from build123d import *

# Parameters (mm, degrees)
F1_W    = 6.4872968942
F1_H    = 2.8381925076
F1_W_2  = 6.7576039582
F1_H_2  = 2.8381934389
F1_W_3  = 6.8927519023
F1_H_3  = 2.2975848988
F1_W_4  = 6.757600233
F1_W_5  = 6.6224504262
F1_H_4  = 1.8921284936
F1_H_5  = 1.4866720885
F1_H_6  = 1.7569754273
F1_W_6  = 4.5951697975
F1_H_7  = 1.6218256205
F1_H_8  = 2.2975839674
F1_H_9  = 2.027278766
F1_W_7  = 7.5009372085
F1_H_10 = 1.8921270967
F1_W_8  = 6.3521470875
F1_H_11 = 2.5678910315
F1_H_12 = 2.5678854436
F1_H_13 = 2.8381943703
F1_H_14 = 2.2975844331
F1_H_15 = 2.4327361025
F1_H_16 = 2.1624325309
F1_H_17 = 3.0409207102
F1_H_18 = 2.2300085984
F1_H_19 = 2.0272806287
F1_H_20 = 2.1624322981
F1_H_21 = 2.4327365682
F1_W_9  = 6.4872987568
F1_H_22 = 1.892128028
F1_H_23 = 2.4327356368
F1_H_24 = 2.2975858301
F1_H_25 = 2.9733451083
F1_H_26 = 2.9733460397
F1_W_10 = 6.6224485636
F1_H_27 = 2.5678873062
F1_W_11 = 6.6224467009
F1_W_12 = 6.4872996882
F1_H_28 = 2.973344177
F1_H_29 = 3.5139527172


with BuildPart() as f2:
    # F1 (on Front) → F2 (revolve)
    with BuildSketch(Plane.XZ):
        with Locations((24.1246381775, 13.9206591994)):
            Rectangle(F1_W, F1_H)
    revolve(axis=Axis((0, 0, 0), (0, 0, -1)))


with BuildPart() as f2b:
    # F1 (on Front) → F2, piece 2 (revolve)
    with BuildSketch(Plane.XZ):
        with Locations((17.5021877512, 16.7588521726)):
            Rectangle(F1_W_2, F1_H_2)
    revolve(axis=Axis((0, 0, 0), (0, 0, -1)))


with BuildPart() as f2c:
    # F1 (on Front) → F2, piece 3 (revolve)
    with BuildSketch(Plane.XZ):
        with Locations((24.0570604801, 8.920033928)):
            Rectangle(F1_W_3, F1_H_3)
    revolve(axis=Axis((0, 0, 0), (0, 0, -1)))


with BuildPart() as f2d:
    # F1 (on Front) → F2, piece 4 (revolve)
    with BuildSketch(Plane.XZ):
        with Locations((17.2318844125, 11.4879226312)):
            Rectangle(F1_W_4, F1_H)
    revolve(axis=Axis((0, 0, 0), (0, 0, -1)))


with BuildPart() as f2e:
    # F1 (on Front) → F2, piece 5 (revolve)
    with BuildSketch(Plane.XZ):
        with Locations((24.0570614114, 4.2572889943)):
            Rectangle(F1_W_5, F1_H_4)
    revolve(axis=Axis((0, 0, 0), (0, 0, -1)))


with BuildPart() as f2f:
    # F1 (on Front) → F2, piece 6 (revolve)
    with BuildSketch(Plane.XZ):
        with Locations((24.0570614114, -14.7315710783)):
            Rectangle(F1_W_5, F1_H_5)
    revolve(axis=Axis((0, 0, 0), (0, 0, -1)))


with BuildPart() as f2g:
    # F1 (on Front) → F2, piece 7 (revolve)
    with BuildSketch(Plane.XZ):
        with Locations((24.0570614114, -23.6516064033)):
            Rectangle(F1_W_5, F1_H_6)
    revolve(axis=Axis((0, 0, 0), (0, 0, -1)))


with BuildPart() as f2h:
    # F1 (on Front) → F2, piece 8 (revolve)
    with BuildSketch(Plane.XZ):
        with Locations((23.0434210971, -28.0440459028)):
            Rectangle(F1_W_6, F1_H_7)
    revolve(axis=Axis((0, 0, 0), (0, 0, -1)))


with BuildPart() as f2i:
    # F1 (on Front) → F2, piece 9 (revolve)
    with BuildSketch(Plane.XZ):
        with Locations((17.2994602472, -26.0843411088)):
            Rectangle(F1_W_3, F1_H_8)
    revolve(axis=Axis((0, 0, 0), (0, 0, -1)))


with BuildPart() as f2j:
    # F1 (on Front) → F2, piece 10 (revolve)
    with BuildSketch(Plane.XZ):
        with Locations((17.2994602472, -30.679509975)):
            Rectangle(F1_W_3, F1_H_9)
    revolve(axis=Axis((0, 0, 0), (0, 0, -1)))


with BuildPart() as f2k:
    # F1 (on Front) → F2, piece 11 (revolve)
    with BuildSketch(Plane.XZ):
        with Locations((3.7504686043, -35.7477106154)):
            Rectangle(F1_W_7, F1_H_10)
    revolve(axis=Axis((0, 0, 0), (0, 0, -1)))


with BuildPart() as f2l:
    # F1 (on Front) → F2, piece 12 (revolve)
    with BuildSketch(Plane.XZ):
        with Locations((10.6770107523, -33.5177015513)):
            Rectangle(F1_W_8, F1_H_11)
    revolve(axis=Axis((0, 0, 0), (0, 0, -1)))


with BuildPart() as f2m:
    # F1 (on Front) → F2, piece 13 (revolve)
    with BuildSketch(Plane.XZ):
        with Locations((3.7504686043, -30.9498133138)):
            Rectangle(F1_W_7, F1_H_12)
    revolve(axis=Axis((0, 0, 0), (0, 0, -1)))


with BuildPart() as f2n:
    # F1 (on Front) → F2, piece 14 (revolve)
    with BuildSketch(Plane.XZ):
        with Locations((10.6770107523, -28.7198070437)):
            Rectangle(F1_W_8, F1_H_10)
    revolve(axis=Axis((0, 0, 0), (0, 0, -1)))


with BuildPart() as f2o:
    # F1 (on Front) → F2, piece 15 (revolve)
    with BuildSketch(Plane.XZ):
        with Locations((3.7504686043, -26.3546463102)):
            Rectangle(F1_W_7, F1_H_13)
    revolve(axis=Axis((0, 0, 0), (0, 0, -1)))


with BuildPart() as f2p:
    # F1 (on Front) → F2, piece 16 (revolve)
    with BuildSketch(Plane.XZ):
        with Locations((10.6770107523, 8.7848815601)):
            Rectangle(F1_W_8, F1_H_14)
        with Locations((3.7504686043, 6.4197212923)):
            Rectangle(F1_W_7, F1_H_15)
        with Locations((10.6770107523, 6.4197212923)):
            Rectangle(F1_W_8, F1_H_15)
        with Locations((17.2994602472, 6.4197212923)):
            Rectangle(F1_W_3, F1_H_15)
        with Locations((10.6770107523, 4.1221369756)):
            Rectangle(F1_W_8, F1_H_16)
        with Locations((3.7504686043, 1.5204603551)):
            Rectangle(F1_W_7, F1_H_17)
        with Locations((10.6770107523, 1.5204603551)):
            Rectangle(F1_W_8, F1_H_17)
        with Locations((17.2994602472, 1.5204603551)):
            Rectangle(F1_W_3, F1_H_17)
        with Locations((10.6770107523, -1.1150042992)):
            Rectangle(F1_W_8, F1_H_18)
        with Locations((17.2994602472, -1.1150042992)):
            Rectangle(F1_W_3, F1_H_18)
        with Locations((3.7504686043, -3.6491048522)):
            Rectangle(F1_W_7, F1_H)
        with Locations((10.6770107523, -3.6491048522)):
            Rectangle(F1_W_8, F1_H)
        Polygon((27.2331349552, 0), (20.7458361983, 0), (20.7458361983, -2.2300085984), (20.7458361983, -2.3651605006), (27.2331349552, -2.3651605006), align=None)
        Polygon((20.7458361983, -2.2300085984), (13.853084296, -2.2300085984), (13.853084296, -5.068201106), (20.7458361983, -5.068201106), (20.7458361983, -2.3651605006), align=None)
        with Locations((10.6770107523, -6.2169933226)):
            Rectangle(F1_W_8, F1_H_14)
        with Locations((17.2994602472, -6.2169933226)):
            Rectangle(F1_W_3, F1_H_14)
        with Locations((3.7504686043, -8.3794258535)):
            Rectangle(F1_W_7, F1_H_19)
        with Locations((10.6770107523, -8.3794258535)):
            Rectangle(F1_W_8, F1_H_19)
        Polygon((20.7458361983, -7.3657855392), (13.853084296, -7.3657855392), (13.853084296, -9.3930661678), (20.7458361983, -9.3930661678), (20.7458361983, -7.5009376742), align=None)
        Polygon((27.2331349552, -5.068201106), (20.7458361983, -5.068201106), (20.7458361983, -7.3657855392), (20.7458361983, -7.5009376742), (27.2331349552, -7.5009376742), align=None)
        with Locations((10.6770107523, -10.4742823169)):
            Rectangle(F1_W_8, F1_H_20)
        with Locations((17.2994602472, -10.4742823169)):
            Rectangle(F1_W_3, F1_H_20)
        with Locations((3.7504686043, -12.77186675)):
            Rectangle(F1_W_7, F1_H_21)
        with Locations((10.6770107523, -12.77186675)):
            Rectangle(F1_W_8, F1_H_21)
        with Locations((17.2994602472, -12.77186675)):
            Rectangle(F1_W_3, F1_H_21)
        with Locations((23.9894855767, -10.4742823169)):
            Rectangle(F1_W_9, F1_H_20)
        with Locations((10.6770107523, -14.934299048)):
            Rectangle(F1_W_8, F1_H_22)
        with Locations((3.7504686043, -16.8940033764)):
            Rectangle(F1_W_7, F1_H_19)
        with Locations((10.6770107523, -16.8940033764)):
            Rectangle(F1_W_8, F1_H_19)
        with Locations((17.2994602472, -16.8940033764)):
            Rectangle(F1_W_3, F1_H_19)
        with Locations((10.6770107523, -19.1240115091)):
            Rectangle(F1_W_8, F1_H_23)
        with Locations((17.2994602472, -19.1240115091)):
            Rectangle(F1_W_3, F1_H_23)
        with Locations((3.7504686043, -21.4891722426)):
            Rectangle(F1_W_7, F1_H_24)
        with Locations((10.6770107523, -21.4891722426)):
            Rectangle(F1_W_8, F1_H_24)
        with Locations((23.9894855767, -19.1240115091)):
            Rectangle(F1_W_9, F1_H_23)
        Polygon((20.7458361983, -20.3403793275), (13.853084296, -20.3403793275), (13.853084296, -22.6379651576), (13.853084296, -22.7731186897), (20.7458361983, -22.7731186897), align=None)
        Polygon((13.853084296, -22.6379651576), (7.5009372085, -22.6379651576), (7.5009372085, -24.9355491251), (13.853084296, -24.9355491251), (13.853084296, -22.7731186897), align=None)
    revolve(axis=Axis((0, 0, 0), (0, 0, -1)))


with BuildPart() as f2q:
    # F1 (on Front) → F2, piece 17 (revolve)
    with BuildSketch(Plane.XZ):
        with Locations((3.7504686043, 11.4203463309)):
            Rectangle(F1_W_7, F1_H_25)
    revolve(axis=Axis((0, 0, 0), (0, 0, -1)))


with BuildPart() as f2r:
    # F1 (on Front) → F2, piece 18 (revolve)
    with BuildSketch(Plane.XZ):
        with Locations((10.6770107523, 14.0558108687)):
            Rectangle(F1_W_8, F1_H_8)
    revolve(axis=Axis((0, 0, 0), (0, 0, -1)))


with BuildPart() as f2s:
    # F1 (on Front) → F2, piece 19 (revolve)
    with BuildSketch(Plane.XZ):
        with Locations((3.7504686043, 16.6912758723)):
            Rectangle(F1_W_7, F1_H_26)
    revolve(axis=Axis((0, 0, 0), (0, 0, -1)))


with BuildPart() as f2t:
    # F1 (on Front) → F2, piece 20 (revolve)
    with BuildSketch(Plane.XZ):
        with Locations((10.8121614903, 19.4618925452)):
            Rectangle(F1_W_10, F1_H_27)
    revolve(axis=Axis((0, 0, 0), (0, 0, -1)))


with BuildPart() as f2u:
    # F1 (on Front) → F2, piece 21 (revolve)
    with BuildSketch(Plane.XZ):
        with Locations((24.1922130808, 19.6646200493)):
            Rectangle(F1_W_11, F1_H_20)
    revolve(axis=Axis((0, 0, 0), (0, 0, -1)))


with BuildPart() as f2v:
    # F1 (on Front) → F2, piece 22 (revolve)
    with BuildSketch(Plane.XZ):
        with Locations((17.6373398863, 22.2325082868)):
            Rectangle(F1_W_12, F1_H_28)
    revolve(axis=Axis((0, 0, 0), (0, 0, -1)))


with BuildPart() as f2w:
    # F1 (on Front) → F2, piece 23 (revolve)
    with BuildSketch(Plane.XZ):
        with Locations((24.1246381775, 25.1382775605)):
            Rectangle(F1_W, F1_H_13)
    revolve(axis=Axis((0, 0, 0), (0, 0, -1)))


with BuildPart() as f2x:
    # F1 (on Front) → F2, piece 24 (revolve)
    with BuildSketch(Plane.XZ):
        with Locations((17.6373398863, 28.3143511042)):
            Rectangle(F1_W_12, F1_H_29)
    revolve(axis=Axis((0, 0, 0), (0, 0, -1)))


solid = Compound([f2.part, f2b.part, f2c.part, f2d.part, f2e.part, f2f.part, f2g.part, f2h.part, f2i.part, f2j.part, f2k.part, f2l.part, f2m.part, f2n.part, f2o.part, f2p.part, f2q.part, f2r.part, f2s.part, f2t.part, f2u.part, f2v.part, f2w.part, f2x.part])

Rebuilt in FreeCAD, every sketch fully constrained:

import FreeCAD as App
import Part
import Sketcher


def add_polygon(sketch, points):
    """Adds a closed chain of lines whose ends are joined by coincident constraints."""
    first, n = sketch.GeometryCount, len(points)
    for a, b in zip(points, points[1:] + points[:1]):
        sketch.addGeometry(Part.LineSegment(App.Vector(*a, 0), App.Vector(*b, 0)), False)
    for i in range(n):
        sketch.addConstraint(Sketcher.Constraint("Coincident", first + i, 2, first + (i + 1) % n, 1))

doc = App.newDocument("Part")
params = doc.addObject("Spreadsheet::Sheet", "Params")
for row, (alias, value) in enumerate([
    ("revolution_angle", "360 deg"),
    ("revolution2_angle", "360 deg"),
    ("revolution3_angle", "360 deg"),
    ("revolution4_angle", "360 deg"),
    ("revolution5_angle", "360 deg"),
    ("revolution6_angle", "360 deg"),
    ("revolution7_angle", "360 deg"),
    ("revolution8_angle", "360 deg"),
    ("revolution9_angle", "360 deg"),
    ("revolution10_angle", "360 deg"),
    ("revolution11_angle", "360 deg"),
    ("revolution12_angle", "360 deg"),
    ("revolution13_angle", "360 deg"),
    ("revolution14_angle", "360 deg"),
    ("revolution15_angle", "360 deg"),
    ("revolution16_angle", "360 deg"),
    ("revolution17_angle", "360 deg"),
    ("revolution18_angle", "360 deg"),
    ("revolution19_angle", "360 deg"),
    ("revolution20_angle", "360 deg"),
    ("revolution21_angle", "360 deg"),
    ("revolution22_angle", "360 deg"),
    ("revolution23_angle", "360 deg"),
    ("revolution24_angle", "360 deg"),
], start=1):
    params.set(f"A{row}", alias)
    params.set(f"B{row}", "=" + value)
    params.setAlias(f"B{row}", alias)

body = doc.addObject("PartDesign::Body", "Body")

sketch1 = body.newObject("Sketcher::SketchObject", "Sketch")
sketch1.AttachmentSupport = (doc.getObject("XZ_Plane"), [""])
sketch1.MapMode = "FlatFace"
add_polygon(sketch1, [(20.9, 15.3), (20.9, 12.5), (27.4, 12.5), (27.4, 15.3)])
sketch1.addConstraint([
    Sketcher.Constraint("Vertical", 0),
    Sketcher.Constraint("Horizontal", 1),
    Sketcher.Constraint("Vertical", 2),
    Sketcher.Constraint("Horizontal", 3),
    Sketcher.Constraint("DistanceX", 1, 1, 1, 2, 6.487297),
    Sketcher.Constraint("DistanceY", 0, 2, 0, 1, 2.838193),
    Sketcher.Constraint("DistanceX", -1, 1, 0, 2, 20.88099),
    Sketcher.Constraint("DistanceY", -1, 1, 0, 2, 12.501563),
])
revolution = body.newObject("PartDesign::Revolution", "Revolution")
revolution.Profile = sketch1
revolution.ReferenceAxis = (sketch1, ["V_Axis"])
revolution.setExpression("Angle", "Params.revolution_angle")
body2 = doc.addObject("PartDesign::Body", "Body001")

sketch2 = body2.newObject("Sketcher::SketchObject", "Sketch001")
sketch2.AttachmentSupport = (doc.getObject("XZ_Plane001"), [""])
sketch2.MapMode = "FlatFace"
add_polygon(sketch2, [(14.1, 18.2), (14.1, 15.3), (20.9, 15.3), (20.9, 18.2)])
sketch2.addConstraint([
    Sketcher.Constraint("Vertical", 0),
    Sketcher.Constraint("Horizontal", 1),
    Sketcher.Constraint("Vertical", 2),
    Sketcher.Constraint("Horizontal", 3),
    Sketcher.Constraint("DistanceX", 1, 1, 1, 2, 6.757604),
    Sketcher.Constraint("DistanceY", 0, 2, 0, 1, 2.838193),
    Sketcher.Constraint("DistanceX", -1, 1, 1, 2, 20.88099),
    Sketcher.Constraint("DistanceY", -1, 1, 2, 2, 18.177949),
])
revolution2 = body2.newObject("PartDesign::Revolution", "Revolution001")
revolution2.Profile = sketch2
revolution2.ReferenceAxis = (sketch2, ["V_Axis"])
revolution2.setExpression("Angle", "Params.revolution2_angle")
body3 = doc.addObject("PartDesign::Body", "Body002")

sketch3 = body3.newObject("Sketcher::SketchObject", "Sketch002")
sketch3.AttachmentSupport = (doc.getObject("XZ_Plane002"), [""])
sketch3.MapMode = "FlatFace"
add_polygon(sketch3, [(20.6, 10.1), (20.6, 7.8), (27.5, 7.8), (27.5, 10.1)])
sketch3.addConstraint([
    Sketcher.Constraint("Vertical", 0),
    Sketcher.Constraint("Horizontal", 1),
    Sketcher.Constraint("Vertical", 2),
    Sketcher.Constraint("Horizontal", 3),
    Sketcher.Constraint("DistanceX", 1, 1, 1, 2, 6.892752),
    Sketcher.Constraint("DistanceY", 0, 2, 0, 1, 2.297585),
    Sketcher.Constraint("DistanceY", -1, 1, 0, 2, 7.771241),
    Sketcher.Constraint("DistanceX", -1, 1, 0, 2, 20.610685),
])
revolution3 = body3.newObject("PartDesign::Revolution", "Revolution002")
revolution3.Profile = sketch3
revolution3.ReferenceAxis = (sketch3, ["V_Axis"])
revolution3.setExpression("Angle", "Params.revolution3_angle")
body4 = doc.addObject("PartDesign::Body", "Body003")

sketch4 = body4.newObject("Sketcher::SketchObject", "Sketch003")
sketch4.AttachmentSupport = (doc.getObject("XZ_Plane003"), [""])
sketch4.MapMode = "FlatFace"
add_polygon(sketch4, [(13.9, 12.9), (13.9, 10.1), (20.6, 10.1), (20.6, 12.9)])
sketch4.addConstraint([
    Sketcher.Constraint("Vertical", 0),
    Sketcher.Constraint("Horizontal", 1),
    Sketcher.Constraint("Vertical", 2),
    Sketcher.Constraint("Horizontal", 3),
    Sketcher.Constraint("DistanceX", 1, 1, 1, 2, 6.7576),
    Sketcher.Constraint("DistanceY", 0, 2, 0, 1, 2.838193),
    Sketcher.Constraint("DistanceY", -1, 1, 2, 2, 12.907019),
    Sketcher.Constraint("DistanceX", -1, 1, 0, 2, 13.853084),
])
revolution4 = body4.newObject("PartDesign::Revolution", "Revolution003")
revolution4.Profile = sketch4
revolution4.ReferenceAxis = (sketch4, ["V_Axis"])
revolution4.setExpression("Angle", "Params.revolution4_angle")
body5 = doc.addObject("PartDesign::Body", "Body004")

sketch5 = body5.newObject("Sketcher::SketchObject", "Sketch004")
sketch5.AttachmentSupport = (doc.getObject("XZ_Plane004"), [""])
sketch5.MapMode = "FlatFace"
add_polygon(sketch5, [(20.7, 5.2), (20.7, 3.3), (27.4, 3.3), (27.4, 5.2)])
sketch5.addConstraint([
    Sketcher.Constraint("Vertical", 0),
    Sketcher.Constraint("Horizontal", 1),
    Sketcher.Constraint("Vertical", 2),
    Sketcher.Constraint("Horizontal", 3),
    Sketcher.Constraint("DistanceX", 1, 1, 1, 2, 6.62245),
    Sketcher.Constraint("DistanceY", 0, 2, 0, 1, 1.892128),
    Sketcher.Constraint("DistanceX", -1, 1, 0, 2, 20.745836),
    Sketcher.Constraint("DistanceY", -1, 1, 0, 2, 3.311225),
])
revolution5 = body5.newObject("PartDesign::Revolution", "Revolution004")
revolution5.Profile = sketch5
revolution5.ReferenceAxis = (sketch5, ["V_Axis"])
revolution5.setExpression("Angle", "Params.revolution5_angle")
body6 = doc.addObject("PartDesign::Body", "Body005")

sketch6 = body6.newObject("Sketcher::SketchObject", "Sketch005")
sketch6.AttachmentSupport = (doc.getObject("XZ_Plane005"), [""])
sketch6.MapMode = "FlatFace"
add_polygon(sketch6, [(20.7, -14), (20.7, -15.5), (27.4, -15.5), (27.4, -14)])
sketch6.addConstraint([
    Sketcher.Constraint("Vertical", 0),
    Sketcher.Constraint("Horizontal", 1),
    Sketcher.Constraint("Vertical", 2),
    Sketcher.Constraint("Horizontal", 3),
    Sketcher.Constraint("DistanceX", 1, 1, 1, 2, 6.62245),
    Sketcher.Constraint("DistanceY", 0, 2, 0, 1, 1.486672),
    Sketcher.Constraint("DistanceX", -1, 1, 0, 2, 20.745836),
    Sketcher.Constraint("DistanceY", 0, 2, -1, 1, 15.474907),
])
revolution6 = body6.newObject("PartDesign::Revolution", "Revolution005")
revolution6.Profile = sketch6
revolution6.ReferenceAxis = (sketch6, ["V_Axis"])
revolution6.setExpression("Angle", "Params.revolution6_angle")
body7 = doc.addObject("PartDesign::Body", "Body006")

sketch7 = body7.newObject("Sketcher::SketchObject", "Sketch006")
sketch7.AttachmentSupport = (doc.getObject("XZ_Plane006"), [""])
sketch7.MapMode = "FlatFace"
add_polygon(sketch7, [(20.7, -22.8), (20.7, -24.5), (27.4, -24.5), (27.4, -22.8)])
sketch7.addConstraint([
    Sketcher.Constraint("Vertical", 0),
    Sketcher.Constraint("Horizontal", 1),
    Sketcher.Constraint("Vertical", 2),
    Sketcher.Constraint("Horizontal", 3),
    Sketcher.Constraint("DistanceX", 1, 1, 1, 2, 6.62245),
    Sketcher.Constraint("DistanceY", 0, 2, 0, 1, 1.756975),
    Sketcher.Constraint("DistanceY", 2, 2, -1, 1, 22.773119),
    Sketcher.Constraint("DistanceX", -1, 1, 0, 2, 20.745836),
])
revolution7 = body7.newObject("PartDesign::Revolution", "Revolution006")
revolution7.Profile = sketch7
revolution7.ReferenceAxis = (sketch7, ["V_Axis"])
revolution7.setExpression("Angle", "Params.revolution7_angle")
body8 = doc.addObject("PartDesign::Body", "Body007")

sketch8 = body8.newObject("Sketcher::SketchObject", "Sketch007")
sketch8.AttachmentSupport = (doc.getObject("XZ_Plane007"), [""])
sketch8.MapMode = "FlatFace"
add_polygon(sketch8, [(20.7, -27.2), (20.7, -28.9), (25.3, -28.9), (25.3, -27.2)])
sketch8.addConstraint([
    Sketcher.Constraint("Vertical", 0),
    Sketcher.Constraint("Horizontal", 1),
    Sketcher.Constraint("Vertical", 2),
    Sketcher.Constraint("Horizontal", 3),
    Sketcher.Constraint("DistanceX", 1, 1, 1, 2, 4.59517),
    Sketcher.Constraint("DistanceY", 0, 2, 0, 1, 1.621826),
    Sketcher.Constraint("DistanceY", 0, 2, -1, 1, 28.854959),
    Sketcher.Constraint("DistanceX", -1, 1, 0, 2, 20.745836),
])
revolution8 = body8.newObject("PartDesign::Revolution", "Revolution007")
revolution8.Profile = sketch8
revolution8.ReferenceAxis = (sketch8, ["V_Axis"])
revolution8.setExpression("Angle", "Params.revolution8_angle")
body9 = doc.addObject("PartDesign::Body", "Body008")

sketch9 = body9.newObject("Sketcher::SketchObject", "Sketch008")
sketch9.AttachmentSupport = (doc.getObject("XZ_Plane008"), [""])
sketch9.MapMode = "FlatFace"
add_polygon(sketch9, [(13.9, -24.9), (13.9, -27.2), (20.7, -27.2), (20.7, -24.9)])
sketch9.addConstraint([
    Sketcher.Constraint("Vertical", 0),
    Sketcher.Constraint("Horizontal", 1),
    Sketcher.Constraint("Vertical", 2),
    Sketcher.Constraint("Horizontal", 3),
    Sketcher.Constraint("DistanceX", 1, 1, 1, 2, 6.892752),
    Sketcher.Constraint("DistanceY", 0, 2, 0, 1, 2.297584),
    Sketcher.Constraint("DistanceY", 2, 2, -1, 1, 24.935549),
    Sketcher.Constraint("DistanceX", -1, 1, 0, 2, 13.853084),
])
revolution9 = body9.newObject("PartDesign::Revolution", "Revolution008")
revolution9.Profile = sketch9
revolution9.ReferenceAxis = (sketch9, ["V_Axis"])
revolution9.setExpression("Angle", "Params.revolution9_angle")
body10 = doc.addObject("PartDesign::Body", "Body009")

sketch10 = body10.newObject("Sketcher::SketchObject", "Sketch009")
sketch10.AttachmentSupport = (doc.getObject("XZ_Plane009"), [""])
sketch10.MapMode = "FlatFace"
add_polygon(sketch10, [(13.9, -29.7), (13.9, -31.7), (20.7, -31.7), (20.7, -29.7)])
sketch10.addConstraint([
    Sketcher.Constraint("Vertical", 0),
    Sketcher.Constraint("Horizontal", 1),
    Sketcher.Constraint("Vertical", 2),
    Sketcher.Constraint("Horizontal", 3),
    Sketcher.Constraint("DistanceX", 1, 1, 1, 2, 6.892752),
    Sketcher.Constraint("DistanceY", 0, 2, 0, 1, 2.027279),
    Sketcher.Constraint("DistanceY", 0, 2, -1, 1, 31.693149),
    Sketcher.Constraint("DistanceX", -1, 1, 0, 2, 13.853084),
])
revolution10 = body10.newObject("PartDesign::Revolution", "Revolution009")
revolution10.Profile = sketch10
revolution10.ReferenceAxis = (sketch10, ["V_Axis"])
revolution10.setExpression("Angle", "Params.revolution10_angle")
body11 = doc.addObject("PartDesign::Body", "Body010")

sketch11 = body11.newObject("Sketcher::SketchObject", "Sketch010")
sketch11.AttachmentSupport = (doc.getObject("XZ_Plane010"), [""])
sketch11.MapMode = "FlatFace"
add_polygon(sketch11, [(0, -34.8), (0, -36.7), (7.5, -36.7), (7.5, -34.8)])
sketch11.addConstraint([
    Sketcher.Constraint("Vertical", 0),
    Sketcher.Constraint("Horizontal", 1),
    Sketcher.Constraint("Vertical", 2),
    Sketcher.Constraint("Horizontal", 3),
    Sketcher.Constraint("PointOnObject", 0, 2, -2),
    Sketcher.Constraint("DistanceX", 1, 1, 1, 2, 7.500937),
    Sketcher.Constraint("DistanceY", 0, 2, 0, 1, 1.892127),
    Sketcher.Constraint("DistanceY", 0, 2, -1, 1, 36.693774),
])
revolution11 = body11.newObject("PartDesign::Revolution", "Revolution010")
revolution11.Profile = sketch11
revolution11.ReferenceAxis = (sketch11, ["V_Axis"])
revolution11.setExpression("Angle", "Params.revolution11_angle")
body12 = doc.addObject("PartDesign::Body", "Body011")

sketch12 = body12.newObject("Sketcher::SketchObject", "Sketch011")
sketch12.AttachmentSupport = (doc.getObject("XZ_Plane011"), [""])
sketch12.MapMode = "FlatFace"
add_polygon(sketch12, [(7.5, -32.2), (7.5, -34.8), (13.9, -34.8), (13.9, -32.2)])
sketch12.addConstraint([
    Sketcher.Constraint("Vertical", 0),
    Sketcher.Constraint("Horizontal", 1),
    Sketcher.Constraint("Vertical", 2),
    Sketcher.Constraint("Horizontal", 3),
    Sketcher.Constraint("DistanceY", 0, 2, 0, 1, 2.567891),
    Sketcher.Constraint("DistanceX", 1, 1, 1, 2, 6.352147),
    Sketcher.Constraint("DistanceX", -1, 1, 0, 2, 7.500937),
    Sketcher.Constraint("DistanceY", 0, 2, -1, 1, 34.801647),
])
revolution12 = body12.newObject("PartDesign::Revolution", "Revolution011")
revolution12.Profile = sketch12
revolution12.ReferenceAxis = (sketch12, ["V_Axis"])
revolution12.setExpression("Angle", "Params.revolution12_angle")
body13 = doc.addObject("PartDesign::Body", "Body012")

sketch13 = body13.newObject("Sketcher::SketchObject", "Sketch012")
sketch13.AttachmentSupport = (doc.getObject("XZ_Plane012"), [""])
sketch13.MapMode = "FlatFace"
add_polygon(sketch13, [(0, -29.7), (0, -32.2), (7.5, -32.2), (7.5, -29.7)])
sketch13.addConstraint([
    Sketcher.Constraint("Vertical", 0),
    Sketcher.Constraint("Horizontal", 1),
    Sketcher.Constraint("Vertical", 2),
    Sketcher.Constraint("Horizontal", 3),
    Sketcher.Constraint("PointOnObject", 0, 2, -2),
    Sketcher.Constraint("DistanceX", 1, 1, 1, 2, 7.500937),
    Sketcher.Constraint("DistanceY", 0, 2, 0, 1, 2.567885),
    Sketcher.Constraint("DistanceY", 2, 2, -1, 1, 29.665871),
])
revolution13 = body13.newObject("PartDesign::Revolution", "Revolution012")
revolution13.Profile = sketch13
revolution13.ReferenceAxis = (sketch13, ["V_Axis"])
revolution13.setExpression("Angle", "Params.revolution13_angle")
body14 = doc.addObject("PartDesign::Body", "Body013")

sketch14 = body14.newObject("Sketcher::SketchObject", "Sketch013")
sketch14.AttachmentSupport = (doc.getObject("XZ_Plane013"), [""])
sketch14.MapMode = "FlatFace"
add_polygon(sketch14, [(7.5, -27.8), (7.5, -29.7), (13.9, -29.7), (13.9, -27.8)])
sketch14.addConstraint([
    Sketcher.Constraint("Vertical", 0),
    Sketcher.Constraint("Horizontal", 1),
    Sketcher.Constraint("Vertical", 2),
    Sketcher.Constraint("Horizontal", 3),
    Sketcher.Constraint("DistanceX", 1, 1, 1, 2, 6.352147),
    Sketcher.Constraint("DistanceY", 0, 2, 0, 1, 1.892127),
    Sketcher.Constraint("DistanceY", 0, 2, -1, 1, 29.665871),
    Sketcher.Constraint("DistanceX", -1, 1, 0, 2, 7.500937),
])
revolution14 = body14.newObject("PartDesign::Revolution", "Revolution013")
revolution14.Profile = sketch14
revolution14.ReferenceAxis = (sketch14, ["V_Axis"])
revolution14.setExpression("Angle", "Params.revolution14_angle")
body15 = doc.addObject("PartDesign::Body", "Body014")

sketch15 = body15.newObject("Sketcher::SketchObject", "Sketch014")
sketch15.AttachmentSupport = (doc.getObject("XZ_Plane014"), [""])
sketch15.MapMode = "FlatFace"
add_polygon(sketch15, [(0, -24.9), (0, -27.8), (7.5, -27.8), (7.5, -24.9)])
sketch15.addConstraint([
    Sketcher.Constraint("Vertical", 0),
    Sketcher.Constraint("Horizontal", 1),
    Sketcher.Constraint("Vertical", 2),
    Sketcher.Constraint("Horizontal", 3),
    Sketcher.Constraint("PointOnObject", 0, 2, -2),
    Sketcher.Constraint("DistanceX", 1, 1, 1, 2, 7.500937),
    Sketcher.Constraint("DistanceY", 0, 2, 0, 1, 2.838194),
    Sketcher.Constraint("DistanceY", 2, 2, -1, 1, 24.935549),
])
revolution15 = body15.newObject("PartDesign::Revolution", "Revolution014")
revolution15.Profile = sketch15
revolution15.ReferenceAxis = (sketch15, ["V_Axis"])
revolution15.setExpression("Angle", "Params.revolution15_angle")
body16 = doc.addObject("PartDesign::Body", "Body015")

sketch16 = body16.newObject("Sketcher::SketchObject", "Sketch015")
sketch16.AttachmentSupport = (doc.getObject("XZ_Plane015"), [""])
sketch16.MapMode = "FlatFace"
add_polygon(sketch16, [(7.5, 9.9), (7.5, 7.6), (0, 7.6), (0, 5.2), (7.5, 5.2), (7.5, 3), (0, 3), (0, 0), (7.5, 0), (7.5, -2.2), (0, -2.2), (0, -5.1), (7.5, -5.1), (7.5, -7.4), (0, -7.4), (0, -9.4), (7.5, -9.4), (7.5, -11.6), (0, -11.6), (0, -14), (7.5, -14), (7.5, -15.9), (0, -15.9), (0, -17.9), (7.5, -17.9), (7.5, -20.3), (0, -20.3), (0, -22.6), (7.5, -22.6), (7.5, -24.9), (13.9, -24.9), (13.9, -22.8), (20.7, -22.8), (20.7, -20.3), (27.2, -20.3), (27.2, -17.9), (20.7, -17.9), (20.7, -15.9), (13.9, -15.9), (13.9, -14), (20.7, -14), (20.7, -11.6), (27.2, -11.6), (27.2, -9.4), (20.7, -9.4), (20.7, -7.5), (27.2, -7.5), (27.2, -5.1), (20.7, -5.1), (20.7, -2.4), (27.2, -2.4), (27.2, 0), (20.7, 0), (20.7, 3), (13.9, 3), (13.9, 5.2), (20.7, 5.2), (20.7, 7.6), (13.9, 7.6), (13.9, 9.9)])
sketch16.addConstraint([
    Sketcher.Constraint("Vertical", 0),
    Sketcher.Constraint("Horizontal", 1),
    Sketcher.Constraint("Vertical", 2),
    Sketcher.Constraint("Horizontal", 3),
    Sketcher.Constraint("Vertical", 4),
    Sketcher.Constraint("Horizontal", 5),
    Sketcher.Constraint("Vertical", 6),
    Sketcher.Constraint("Horizontal", 7),
    Sketcher.Constraint("Vertical", 8),
    Sketcher.Constraint("Horizontal", 9),
    Sketcher.Constraint("Vertical", 10),
    Sketcher.Constraint("Horizontal", 11),
    Sketcher.Constraint("Vertical", 12),
    Sketcher.Constraint("Horizontal", 13),
    Sketcher.Constraint("Vertical", 14),
    Sketcher.Constraint("Horizontal", 15),
    Sketcher.Constraint("Vertical", 16),
    Sketcher.Constraint("Horizontal", 17),
    Sketcher.Constraint("Vertical", 18),
    Sketcher.Constraint("Horizontal", 19),
    Sketcher.Constraint("Vertical", 20),
    Sketcher.Constraint("Horizontal", 21),
    Sketcher.Constraint("Vertical", 22),
    Sketcher.Constraint("Horizontal", 23),
    Sketcher.Constraint("Vertical", 24),
    Sketcher.Constraint("Horizontal", 25),
    Sketcher.Constraint("Vertical", 26),
    Sketcher.Constraint("Horizontal", 27),
    Sketcher.Constraint("Vertical", 28),
    Sketcher.Constraint("Horizontal", 29),
    Sketcher.Constraint("Vertical", 30),
    Sketcher.Constraint("Horizontal", 31),
    Sketcher.Constraint("Vertical", 32),
    Sketcher.Constraint("Horizontal", 33),
    Sketcher.Constraint("Vertical", 34),
    Sketcher.Constraint("Horizontal", 35),
    Sketcher.Constraint("Vertical", 36),
    Sketcher.Constraint("Horizontal", 37),
    Sketcher.Constraint("Vertical", 38),
    Sketcher.Constraint("Horizontal", 39),
    Sketcher.Constraint("Vertical", 40),
    Sketcher.Constraint("Horizontal", 41),
    Sketcher.Constraint("Vertical", 42),
    Sketcher.Constraint("Horizontal", 43),
    Sketcher.Constraint("Vertical", 44),
    Sketcher.Constraint("Horizontal", 45),
    Sketcher.Constraint("Vertical", 46),
    Sketcher.Constraint("Horizontal", 47),
    Sketcher.Constraint("Vertical", 48),
    Sketcher.Constraint("Horizontal", 49),
    Sketcher.Constraint("Vertical", 50),
    Sketcher.Constraint("Horizontal", 51),
    Sketcher.Constraint("Vertical", 52),
    Sketcher.Constraint("Horizontal", 53),
    Sketcher.Constraint("Vertical", 54),
    Sketcher.Constraint("Horizontal", 55),
    Sketcher.Constraint("Vertical", 56),
    Sketcher.Constraint("Horizontal", 57),
    Sketcher.Constraint("Vertical", 58),
    Sketcher.Constraint("Horizontal", 59),
    Sketcher.Constraint("Coincident", 6, 2, -1, 1),
    Sketcher.Constraint("PointOnObject", 1, 2, -2),
    Sketcher.Constraint("PointOnObject", 9, 2, -2),
    Sketcher.Constraint("PointOnObject", 13, 2, -2),
    Sketcher.Constraint("PointOnObject", 17, 2, -2),
    Sketcher.Constraint("PointOnObject", 21, 2, -2),
    Sketcher.Constraint("PointOnObject", 25, 2, -2),
    Sketcher.Constraint("PointOnObject", 50, 2, -1),
    Sketcher.Constraint("Horizontal", 25, 2, 32, 2),
    Sketcher.Constraint("Horizontal", 23, 2, 34, 2),
    Sketcher.Constraint("Horizontal", 21, 2, 36, 2),
    Sketcher.Constraint("Horizontal", 19, 2, 38, 2),
    Sketcher.Constraint("Horizontal", 17, 2, 40, 2),
    Sketcher.Constraint("Horizontal", 15, 2, 42, 2),
    Sketcher.Constraint("Horizontal", 11, 2, 46, 2),
    Sketcher.Constraint("Horizontal", 5, 2, 52, 2),
    Sketcher.Constraint("Horizontal", 3, 2, 54, 2),
    Sketcher.Constraint("Horizontal", 1, 2, 56, 2),
    Sketcher.Constraint("Vertical", 0, 2, 3, 2),
    Sketcher.Constraint("Vertical", 4, 2, 7, 2),
    Sketcher.Constraint("Vertical", 8, 2, 11, 2),
    Sketcher.Constraint("Vertical", 12, 2, 15, 2),
    Sketcher.Constraint("Vertical", 16, 2, 19, 2),
    Sketcher.Constraint("Vertical", 20, 2, 23, 2),
    Sketcher.Constraint("Vertical", 24, 2, 27, 2),
    Sketcher.Constraint("Vertical", 32, 2, 35, 2),
    Sketcher.Constraint("Vertical", 30, 2, 37, 2),
    Sketcher.Constraint("Vertical", 36, 2, 39, 2),
    Sketcher.Constraint("Vertical", 34, 2, 41, 2),
    Sketcher.Constraint("Vertical", 40, 2, 43, 2),
    Sketcher.Constraint("Vertical", 42, 2, 45, 2),
    Sketcher.Constraint("Vertical", 44, 2, 47, 2),
    Sketcher.Constraint("Vertical", 46, 2, 49, 2),
    Sketcher.Constraint("Vertical", 48, 2, 51, 2),
    Sketcher.Constraint("Vertical", 38, 2, 53, 2),
    Sketcher.Constraint("Vertical", 52, 2, 55, 2),
    Sketcher.Constraint("Vertical", 54, 2, 57, 2),
    Sketcher.Constraint("Equal", 0, 12),
    Sketcher.Constraint("Equal", 4, 16),
    Sketcher.Constraint("Equal", 2, 18),
    Sketcher.Constraint("Equal", 14, 22),
    Sketcher.Constraint("Equal", 18, 24),
    Sketcher.Constraint("Equal", 12, 26),
    Sketcher.Constraint("Equal", 26, 28),
    Sketcher.Constraint("Equal", 16, 30),
    Sketcher.Constraint("Equal", 38, 44),
    Sketcher.Constraint("Equal", 40, 46),
    Sketcher.Constraint("DistanceX", 33, 1, 33, 2, 6.487299),
    Sketcher.Constraint("DistanceX", 31, 1, 31, 2, 6.892752),
    Sketcher.Constraint("DistanceY", 6, 2, 6, 1, 3.040921),
    Sketcher.Constraint("DistanceY", 8, 2, 8, 1, 2.230009),
    Sketcher.Constraint("DistanceY", 14, 2, 14, 1, 2.027281),
    Sketcher.Constraint("DistanceY", 20, 2, 20, 1, 1.892128),
    Sketcher.Constraint("DistanceY", 30, 1, 30, 2, 2.16243),
    Sketcher.Constraint("DistanceY", 32, 1, 32, 2, 2.432739),
    Sketcher.Constraint("DistanceY", 48, 1, 48, 2, 2.703041),
    Sketcher.Constraint("DistanceY", 50, 1, 50, 2, 2.365161),
    Sketcher.Constraint("DistanceX", 27, 2, 31, 2, 13.244899),
    Sketcher.Constraint("DistanceX", 1, 2, 1, 1, 7.500937),
])
revolution16 = body16.newObject("PartDesign::Revolution", "Revolution015")
revolution16.Profile = sketch16
revolution16.ReferenceAxis = (sketch16, ["V_Axis"])
revolution16.setExpression("Angle", "Params.revolution16_angle")
body17 = doc.addObject("PartDesign::Body", "Body016")

sketch17 = body17.newObject("Sketcher::SketchObject", "Sketch016")
sketch17.AttachmentSupport = (doc.getObject("XZ_Plane016"), [""])
sketch17.MapMode = "FlatFace"
add_polygon(sketch17, [(0, 12.9), (0, 9.9), (7.5, 9.9), (7.5, 12.9)])
sketch17.addConstraint([
    Sketcher.Constraint("Vertical", 0),
    Sketcher.Constraint("Horizontal", 1),
    Sketcher.Constraint("Vertical", 2),
    Sketcher.Constraint("Horizontal", 3),
    Sketcher.Constraint("PointOnObject", 0, 2, -2),
    Sketcher.Constraint("DistanceX", 1, 1, 1, 2, 7.500937),
    Sketcher.Constraint("DistanceY", 0, 2, 0, 1, 2.973345),
    Sketcher.Constraint("DistanceY", -1, 1, 2, 2, 12.907019),
])
revolution17 = body17.newObject("PartDesign::Revolution", "Revolution016")
revolution17.Profile = sketch17
revolution17.ReferenceAxis = (sketch17, ["V_Axis"])
revolution17.setExpression("Angle", "Params.revolution17_angle")
body18 = doc.addObject("PartDesign::Body", "Body017")

sketch18 = body18.newObject("Sketcher::SketchObject", "Sketch017")
sketch18.AttachmentSupport = (doc.getObject("XZ_Plane017"), [""])
sketch18.MapMode = "FlatFace"
add_polygon(sketch18, [(7.5, 15.2), (7.5, 12.9), (13.9, 12.9), (13.9, 15.2)])
sketch18.addConstraint([
    Sketcher.Constraint("Vertical", 0),
    Sketcher.Constraint("Horizontal", 1),
    Sketcher.Constraint("Vertical", 2),
    Sketcher.Constraint("Horizontal", 3),
    Sketcher.Constraint("DistanceX", 1, 1, 1, 2, 6.352147),
    Sketcher.Constraint("DistanceY", 0, 2, 0, 1, 2.297584),
    Sketcher.Constraint("DistanceY", -1, 1, 0, 2, 12.907019),
    Sketcher.Constraint("DistanceX", -1, 1, 0, 2, 7.500937),
])
revolution18 = body18.newObject("PartDesign::Revolution", "Revolution017")
revolution18.Profile = sketch18
revolution18.ReferenceAxis = (sketch18, ["V_Axis"])
revolution18.setExpression("Angle", "Params.revolution18_angle")
body19 = doc.addObject("PartDesign::Body", "Body018")

sketch19 = body19.newObject("Sketcher::SketchObject", "Sketch018")
sketch19.AttachmentSupport = (doc.getObject("XZ_Plane018"), [""])
sketch19.MapMode = "FlatFace"
add_polygon(sketch19, [(0, 18.2), (0, 15.2), (7.5, 15.2), (7.5, 18.2)])
sketch19.addConstraint([
    Sketcher.Constraint("Vertical", 0),
    Sketcher.Constraint("Horizontal", 1),
    Sketcher.Constraint("Vertical", 2),
    Sketcher.Constraint("Horizontal", 3),
    Sketcher.Constraint("PointOnObject", 0, 2, -2),
    Sketcher.Constraint("DistanceX", 1, 1, 1, 2, 7.500937),
    Sketcher.Constraint("DistanceY", 0, 2, 0, 1, 2.973346),
    Sketcher.Constraint("DistanceY", -1, 1, 2, 2, 18.177949),
])
revolution19 = body19.newObject("PartDesign::Revolution", "Revolution018")
revolution19.Profile = sketch19
revolution19.ReferenceAxis = (sketch19, ["V_Axis"])
revolution19.setExpression("Angle", "Params.revolution19_angle")
body20 = doc.addObject("PartDesign::Body", "Body019")

sketch20 = body20.newObject("Sketcher::SketchObject", "Sketch019")
sketch20.AttachmentSupport = (doc.getObject("XZ_Plane019"), [""])
sketch20.MapMode = "FlatFace"
add_polygon(sketch20, [(7.5, 20.7), (7.5, 18.2), (14.1, 18.2), (14.1, 20.7)])
sketch20.addConstraint([
    Sketcher.Constraint("Vertical", 0),
    Sketcher.Constraint("Horizontal", 1),
    Sketcher.Constraint("Vertical", 2),
    Sketcher.Constraint("Horizontal", 3),
    Sketcher.Constraint("DistanceX", 1, 1, 1, 2, 6.622449),
    Sketcher.Constraint("DistanceY", 0, 2, 0, 1, 2.567887),
    Sketcher.Constraint("DistanceY", -1, 1, 0, 2, 18.177949),
    Sketcher.Constraint("DistanceX", -1, 1, 0, 2, 7.500937),
])
revolution20 = body20.newObject("PartDesign::Revolution", "Revolution019")
revolution20.Profile = sketch20
revolution20.ReferenceAxis = (sketch20, ["V_Axis"])
revolution20.setExpression("Angle", "Params.revolution20_angle")
body21 = doc.addObject("PartDesign::Body", "Body020")

sketch21 = body21.newObject("Sketcher::SketchObject", "Sketch020")
sketch21.AttachmentSupport = (doc.getObject("XZ_Plane020"), [""])
sketch21.MapMode = "FlatFace"
add_polygon(sketch21, [(20.9, 20.7), (20.9, 18.6), (27.5, 18.6), (27.5, 20.7)])
sketch21.addConstraint([
    Sketcher.Constraint("Vertical", 0),
    Sketcher.Constraint("Horizontal", 1),
    Sketcher.Constraint("Vertical", 2),
    Sketcher.Constraint("Horizontal", 3),
    Sketcher.Constraint("DistanceX", 1, 1, 1, 2, 6.622447),
    Sketcher.Constraint("DistanceY", 0, 2, 0, 1, 2.162432),
    Sketcher.Constraint("DistanceX", -1, 1, 0, 2, 20.88099),
    Sketcher.Constraint("DistanceY", -1, 1, 0, 2, 18.583404),
])
revolution21 = body21.newObject("PartDesign::Revolution", "Revolution020")
revolution21.Profile = sketch21
revolution21.ReferenceAxis = (sketch21, ["V_Axis"])
revolution21.setExpression("Angle", "Params.revolution21_angle")
body22 = doc.addObject("PartDesign::Body", "Body021")

sketch22 = body22.newObject("Sketcher::SketchObject", "Sketch021")
sketch22.AttachmentSupport = (doc.getObject("XZ_Plane021"), [""])
sketch22.MapMode = "FlatFace"
add_polygon(sketch22, [(14.4, 23.7), (14.4, 20.7), (20.9, 20.7), (20.9, 23.7)])
sketch22.addConstraint([
    Sketcher.Constraint("Vertical", 0),
    Sketcher.Constraint("Horizontal", 1),
    Sketcher.Constraint("Vertical", 2),
    Sketcher.Constraint("Horizontal", 3),
    Sketcher.Constraint("DistanceX", 1, 1, 1, 2, 6.4873),
    Sketcher.Constraint("DistanceY", 0, 2, 0, 1, 2.973344),
    Sketcher.Constraint("DistanceX", -1, 1, 0, 2, 14.39369),
    Sketcher.Constraint("DistanceY", -1, 1, 2, 2, 23.71918),
])
revolution22 = body22.newObject("PartDesign::Revolution", "Revolution021")
revolution22.Profile = sketch22
revolution22.ReferenceAxis = (sketch22, ["V_Axis"])
revolution22.setExpression("Angle", "Params.revolution22_angle")
body23 = doc.addObject("PartDesign::Body", "Body022")

sketch23 = body23.newObject("Sketcher::SketchObject", "Sketch022")
sketch23.AttachmentSupport = (doc.getObject("XZ_Plane022"), [""])
sketch23.MapMode = "FlatFace"
add_polygon(sketch23, [(20.9, 26.6), (20.9, 23.7), (27.4, 23.7), (27.4, 26.6)])
sketch23.addConstraint([
    Sketcher.Constraint("Vertical", 0),
    Sketcher.Constraint("Horizontal", 1),
    Sketcher.Constraint("Vertical", 2),
    Sketcher.Constraint("Horizontal", 3),
    Sketcher.Constraint("DistanceX", 1, 1, 1, 2, 6.487297),
    Sketcher.Constraint("DistanceY", 0, 2, 0, 1, 2.838194),
    Sketcher.Constraint("DistanceX", -1, 1, 0, 2, 20.88099),
    Sketcher.Constraint("DistanceY", -1, 1, 0, 2, 23.71918),
])
revolution23 = body23.newObject("PartDesign::Revolution", "Revolution022")
revolution23.Profile = sketch23
revolution23.ReferenceAxis = (sketch23, ["V_Axis"])
revolution23.setExpression("Angle", "Params.revolution23_angle")
body24 = doc.addObject("PartDesign::Body", "Body023")

sketch24 = body24.newObject("Sketcher::SketchObject", "Sketch023")
sketch24.AttachmentSupport = (doc.getObject("XZ_Plane023"), [""])
sketch24.MapMode = "FlatFace"
add_polygon(sketch24, [(14.4, 30.1), (14.4, 26.6), (20.9, 26.6), (20.9, 30.1)])
sketch24.addConstraint([
    Sketcher.Constraint("Vertical", 0),
    Sketcher.Constraint("Horizontal", 1),
    Sketcher.Constraint("Vertical", 2),
    Sketcher.Constraint("Horizontal", 3),
    Sketcher.Constraint("DistanceX", 1, 1, 1, 2, 6.4873),
    Sketcher.Constraint("DistanceY", 0, 2, 0, 1, 3.513953),
    Sketcher.Constraint("DistanceX", -1, 1, 0, 2, 14.39369),
    Sketcher.Constraint("DistanceY", -1, 1, 0, 2, 26.557375),
])
revolution24 = body24.newObject("PartDesign::Revolution", "Revolution023")
revolution24.Profile = sketch24
revolution24.ReferenceAxis = (sketch24, ["V_Axis"])
revolution24.setExpression("Angle", "Params.revolution24_angle")

doc.recompute()
